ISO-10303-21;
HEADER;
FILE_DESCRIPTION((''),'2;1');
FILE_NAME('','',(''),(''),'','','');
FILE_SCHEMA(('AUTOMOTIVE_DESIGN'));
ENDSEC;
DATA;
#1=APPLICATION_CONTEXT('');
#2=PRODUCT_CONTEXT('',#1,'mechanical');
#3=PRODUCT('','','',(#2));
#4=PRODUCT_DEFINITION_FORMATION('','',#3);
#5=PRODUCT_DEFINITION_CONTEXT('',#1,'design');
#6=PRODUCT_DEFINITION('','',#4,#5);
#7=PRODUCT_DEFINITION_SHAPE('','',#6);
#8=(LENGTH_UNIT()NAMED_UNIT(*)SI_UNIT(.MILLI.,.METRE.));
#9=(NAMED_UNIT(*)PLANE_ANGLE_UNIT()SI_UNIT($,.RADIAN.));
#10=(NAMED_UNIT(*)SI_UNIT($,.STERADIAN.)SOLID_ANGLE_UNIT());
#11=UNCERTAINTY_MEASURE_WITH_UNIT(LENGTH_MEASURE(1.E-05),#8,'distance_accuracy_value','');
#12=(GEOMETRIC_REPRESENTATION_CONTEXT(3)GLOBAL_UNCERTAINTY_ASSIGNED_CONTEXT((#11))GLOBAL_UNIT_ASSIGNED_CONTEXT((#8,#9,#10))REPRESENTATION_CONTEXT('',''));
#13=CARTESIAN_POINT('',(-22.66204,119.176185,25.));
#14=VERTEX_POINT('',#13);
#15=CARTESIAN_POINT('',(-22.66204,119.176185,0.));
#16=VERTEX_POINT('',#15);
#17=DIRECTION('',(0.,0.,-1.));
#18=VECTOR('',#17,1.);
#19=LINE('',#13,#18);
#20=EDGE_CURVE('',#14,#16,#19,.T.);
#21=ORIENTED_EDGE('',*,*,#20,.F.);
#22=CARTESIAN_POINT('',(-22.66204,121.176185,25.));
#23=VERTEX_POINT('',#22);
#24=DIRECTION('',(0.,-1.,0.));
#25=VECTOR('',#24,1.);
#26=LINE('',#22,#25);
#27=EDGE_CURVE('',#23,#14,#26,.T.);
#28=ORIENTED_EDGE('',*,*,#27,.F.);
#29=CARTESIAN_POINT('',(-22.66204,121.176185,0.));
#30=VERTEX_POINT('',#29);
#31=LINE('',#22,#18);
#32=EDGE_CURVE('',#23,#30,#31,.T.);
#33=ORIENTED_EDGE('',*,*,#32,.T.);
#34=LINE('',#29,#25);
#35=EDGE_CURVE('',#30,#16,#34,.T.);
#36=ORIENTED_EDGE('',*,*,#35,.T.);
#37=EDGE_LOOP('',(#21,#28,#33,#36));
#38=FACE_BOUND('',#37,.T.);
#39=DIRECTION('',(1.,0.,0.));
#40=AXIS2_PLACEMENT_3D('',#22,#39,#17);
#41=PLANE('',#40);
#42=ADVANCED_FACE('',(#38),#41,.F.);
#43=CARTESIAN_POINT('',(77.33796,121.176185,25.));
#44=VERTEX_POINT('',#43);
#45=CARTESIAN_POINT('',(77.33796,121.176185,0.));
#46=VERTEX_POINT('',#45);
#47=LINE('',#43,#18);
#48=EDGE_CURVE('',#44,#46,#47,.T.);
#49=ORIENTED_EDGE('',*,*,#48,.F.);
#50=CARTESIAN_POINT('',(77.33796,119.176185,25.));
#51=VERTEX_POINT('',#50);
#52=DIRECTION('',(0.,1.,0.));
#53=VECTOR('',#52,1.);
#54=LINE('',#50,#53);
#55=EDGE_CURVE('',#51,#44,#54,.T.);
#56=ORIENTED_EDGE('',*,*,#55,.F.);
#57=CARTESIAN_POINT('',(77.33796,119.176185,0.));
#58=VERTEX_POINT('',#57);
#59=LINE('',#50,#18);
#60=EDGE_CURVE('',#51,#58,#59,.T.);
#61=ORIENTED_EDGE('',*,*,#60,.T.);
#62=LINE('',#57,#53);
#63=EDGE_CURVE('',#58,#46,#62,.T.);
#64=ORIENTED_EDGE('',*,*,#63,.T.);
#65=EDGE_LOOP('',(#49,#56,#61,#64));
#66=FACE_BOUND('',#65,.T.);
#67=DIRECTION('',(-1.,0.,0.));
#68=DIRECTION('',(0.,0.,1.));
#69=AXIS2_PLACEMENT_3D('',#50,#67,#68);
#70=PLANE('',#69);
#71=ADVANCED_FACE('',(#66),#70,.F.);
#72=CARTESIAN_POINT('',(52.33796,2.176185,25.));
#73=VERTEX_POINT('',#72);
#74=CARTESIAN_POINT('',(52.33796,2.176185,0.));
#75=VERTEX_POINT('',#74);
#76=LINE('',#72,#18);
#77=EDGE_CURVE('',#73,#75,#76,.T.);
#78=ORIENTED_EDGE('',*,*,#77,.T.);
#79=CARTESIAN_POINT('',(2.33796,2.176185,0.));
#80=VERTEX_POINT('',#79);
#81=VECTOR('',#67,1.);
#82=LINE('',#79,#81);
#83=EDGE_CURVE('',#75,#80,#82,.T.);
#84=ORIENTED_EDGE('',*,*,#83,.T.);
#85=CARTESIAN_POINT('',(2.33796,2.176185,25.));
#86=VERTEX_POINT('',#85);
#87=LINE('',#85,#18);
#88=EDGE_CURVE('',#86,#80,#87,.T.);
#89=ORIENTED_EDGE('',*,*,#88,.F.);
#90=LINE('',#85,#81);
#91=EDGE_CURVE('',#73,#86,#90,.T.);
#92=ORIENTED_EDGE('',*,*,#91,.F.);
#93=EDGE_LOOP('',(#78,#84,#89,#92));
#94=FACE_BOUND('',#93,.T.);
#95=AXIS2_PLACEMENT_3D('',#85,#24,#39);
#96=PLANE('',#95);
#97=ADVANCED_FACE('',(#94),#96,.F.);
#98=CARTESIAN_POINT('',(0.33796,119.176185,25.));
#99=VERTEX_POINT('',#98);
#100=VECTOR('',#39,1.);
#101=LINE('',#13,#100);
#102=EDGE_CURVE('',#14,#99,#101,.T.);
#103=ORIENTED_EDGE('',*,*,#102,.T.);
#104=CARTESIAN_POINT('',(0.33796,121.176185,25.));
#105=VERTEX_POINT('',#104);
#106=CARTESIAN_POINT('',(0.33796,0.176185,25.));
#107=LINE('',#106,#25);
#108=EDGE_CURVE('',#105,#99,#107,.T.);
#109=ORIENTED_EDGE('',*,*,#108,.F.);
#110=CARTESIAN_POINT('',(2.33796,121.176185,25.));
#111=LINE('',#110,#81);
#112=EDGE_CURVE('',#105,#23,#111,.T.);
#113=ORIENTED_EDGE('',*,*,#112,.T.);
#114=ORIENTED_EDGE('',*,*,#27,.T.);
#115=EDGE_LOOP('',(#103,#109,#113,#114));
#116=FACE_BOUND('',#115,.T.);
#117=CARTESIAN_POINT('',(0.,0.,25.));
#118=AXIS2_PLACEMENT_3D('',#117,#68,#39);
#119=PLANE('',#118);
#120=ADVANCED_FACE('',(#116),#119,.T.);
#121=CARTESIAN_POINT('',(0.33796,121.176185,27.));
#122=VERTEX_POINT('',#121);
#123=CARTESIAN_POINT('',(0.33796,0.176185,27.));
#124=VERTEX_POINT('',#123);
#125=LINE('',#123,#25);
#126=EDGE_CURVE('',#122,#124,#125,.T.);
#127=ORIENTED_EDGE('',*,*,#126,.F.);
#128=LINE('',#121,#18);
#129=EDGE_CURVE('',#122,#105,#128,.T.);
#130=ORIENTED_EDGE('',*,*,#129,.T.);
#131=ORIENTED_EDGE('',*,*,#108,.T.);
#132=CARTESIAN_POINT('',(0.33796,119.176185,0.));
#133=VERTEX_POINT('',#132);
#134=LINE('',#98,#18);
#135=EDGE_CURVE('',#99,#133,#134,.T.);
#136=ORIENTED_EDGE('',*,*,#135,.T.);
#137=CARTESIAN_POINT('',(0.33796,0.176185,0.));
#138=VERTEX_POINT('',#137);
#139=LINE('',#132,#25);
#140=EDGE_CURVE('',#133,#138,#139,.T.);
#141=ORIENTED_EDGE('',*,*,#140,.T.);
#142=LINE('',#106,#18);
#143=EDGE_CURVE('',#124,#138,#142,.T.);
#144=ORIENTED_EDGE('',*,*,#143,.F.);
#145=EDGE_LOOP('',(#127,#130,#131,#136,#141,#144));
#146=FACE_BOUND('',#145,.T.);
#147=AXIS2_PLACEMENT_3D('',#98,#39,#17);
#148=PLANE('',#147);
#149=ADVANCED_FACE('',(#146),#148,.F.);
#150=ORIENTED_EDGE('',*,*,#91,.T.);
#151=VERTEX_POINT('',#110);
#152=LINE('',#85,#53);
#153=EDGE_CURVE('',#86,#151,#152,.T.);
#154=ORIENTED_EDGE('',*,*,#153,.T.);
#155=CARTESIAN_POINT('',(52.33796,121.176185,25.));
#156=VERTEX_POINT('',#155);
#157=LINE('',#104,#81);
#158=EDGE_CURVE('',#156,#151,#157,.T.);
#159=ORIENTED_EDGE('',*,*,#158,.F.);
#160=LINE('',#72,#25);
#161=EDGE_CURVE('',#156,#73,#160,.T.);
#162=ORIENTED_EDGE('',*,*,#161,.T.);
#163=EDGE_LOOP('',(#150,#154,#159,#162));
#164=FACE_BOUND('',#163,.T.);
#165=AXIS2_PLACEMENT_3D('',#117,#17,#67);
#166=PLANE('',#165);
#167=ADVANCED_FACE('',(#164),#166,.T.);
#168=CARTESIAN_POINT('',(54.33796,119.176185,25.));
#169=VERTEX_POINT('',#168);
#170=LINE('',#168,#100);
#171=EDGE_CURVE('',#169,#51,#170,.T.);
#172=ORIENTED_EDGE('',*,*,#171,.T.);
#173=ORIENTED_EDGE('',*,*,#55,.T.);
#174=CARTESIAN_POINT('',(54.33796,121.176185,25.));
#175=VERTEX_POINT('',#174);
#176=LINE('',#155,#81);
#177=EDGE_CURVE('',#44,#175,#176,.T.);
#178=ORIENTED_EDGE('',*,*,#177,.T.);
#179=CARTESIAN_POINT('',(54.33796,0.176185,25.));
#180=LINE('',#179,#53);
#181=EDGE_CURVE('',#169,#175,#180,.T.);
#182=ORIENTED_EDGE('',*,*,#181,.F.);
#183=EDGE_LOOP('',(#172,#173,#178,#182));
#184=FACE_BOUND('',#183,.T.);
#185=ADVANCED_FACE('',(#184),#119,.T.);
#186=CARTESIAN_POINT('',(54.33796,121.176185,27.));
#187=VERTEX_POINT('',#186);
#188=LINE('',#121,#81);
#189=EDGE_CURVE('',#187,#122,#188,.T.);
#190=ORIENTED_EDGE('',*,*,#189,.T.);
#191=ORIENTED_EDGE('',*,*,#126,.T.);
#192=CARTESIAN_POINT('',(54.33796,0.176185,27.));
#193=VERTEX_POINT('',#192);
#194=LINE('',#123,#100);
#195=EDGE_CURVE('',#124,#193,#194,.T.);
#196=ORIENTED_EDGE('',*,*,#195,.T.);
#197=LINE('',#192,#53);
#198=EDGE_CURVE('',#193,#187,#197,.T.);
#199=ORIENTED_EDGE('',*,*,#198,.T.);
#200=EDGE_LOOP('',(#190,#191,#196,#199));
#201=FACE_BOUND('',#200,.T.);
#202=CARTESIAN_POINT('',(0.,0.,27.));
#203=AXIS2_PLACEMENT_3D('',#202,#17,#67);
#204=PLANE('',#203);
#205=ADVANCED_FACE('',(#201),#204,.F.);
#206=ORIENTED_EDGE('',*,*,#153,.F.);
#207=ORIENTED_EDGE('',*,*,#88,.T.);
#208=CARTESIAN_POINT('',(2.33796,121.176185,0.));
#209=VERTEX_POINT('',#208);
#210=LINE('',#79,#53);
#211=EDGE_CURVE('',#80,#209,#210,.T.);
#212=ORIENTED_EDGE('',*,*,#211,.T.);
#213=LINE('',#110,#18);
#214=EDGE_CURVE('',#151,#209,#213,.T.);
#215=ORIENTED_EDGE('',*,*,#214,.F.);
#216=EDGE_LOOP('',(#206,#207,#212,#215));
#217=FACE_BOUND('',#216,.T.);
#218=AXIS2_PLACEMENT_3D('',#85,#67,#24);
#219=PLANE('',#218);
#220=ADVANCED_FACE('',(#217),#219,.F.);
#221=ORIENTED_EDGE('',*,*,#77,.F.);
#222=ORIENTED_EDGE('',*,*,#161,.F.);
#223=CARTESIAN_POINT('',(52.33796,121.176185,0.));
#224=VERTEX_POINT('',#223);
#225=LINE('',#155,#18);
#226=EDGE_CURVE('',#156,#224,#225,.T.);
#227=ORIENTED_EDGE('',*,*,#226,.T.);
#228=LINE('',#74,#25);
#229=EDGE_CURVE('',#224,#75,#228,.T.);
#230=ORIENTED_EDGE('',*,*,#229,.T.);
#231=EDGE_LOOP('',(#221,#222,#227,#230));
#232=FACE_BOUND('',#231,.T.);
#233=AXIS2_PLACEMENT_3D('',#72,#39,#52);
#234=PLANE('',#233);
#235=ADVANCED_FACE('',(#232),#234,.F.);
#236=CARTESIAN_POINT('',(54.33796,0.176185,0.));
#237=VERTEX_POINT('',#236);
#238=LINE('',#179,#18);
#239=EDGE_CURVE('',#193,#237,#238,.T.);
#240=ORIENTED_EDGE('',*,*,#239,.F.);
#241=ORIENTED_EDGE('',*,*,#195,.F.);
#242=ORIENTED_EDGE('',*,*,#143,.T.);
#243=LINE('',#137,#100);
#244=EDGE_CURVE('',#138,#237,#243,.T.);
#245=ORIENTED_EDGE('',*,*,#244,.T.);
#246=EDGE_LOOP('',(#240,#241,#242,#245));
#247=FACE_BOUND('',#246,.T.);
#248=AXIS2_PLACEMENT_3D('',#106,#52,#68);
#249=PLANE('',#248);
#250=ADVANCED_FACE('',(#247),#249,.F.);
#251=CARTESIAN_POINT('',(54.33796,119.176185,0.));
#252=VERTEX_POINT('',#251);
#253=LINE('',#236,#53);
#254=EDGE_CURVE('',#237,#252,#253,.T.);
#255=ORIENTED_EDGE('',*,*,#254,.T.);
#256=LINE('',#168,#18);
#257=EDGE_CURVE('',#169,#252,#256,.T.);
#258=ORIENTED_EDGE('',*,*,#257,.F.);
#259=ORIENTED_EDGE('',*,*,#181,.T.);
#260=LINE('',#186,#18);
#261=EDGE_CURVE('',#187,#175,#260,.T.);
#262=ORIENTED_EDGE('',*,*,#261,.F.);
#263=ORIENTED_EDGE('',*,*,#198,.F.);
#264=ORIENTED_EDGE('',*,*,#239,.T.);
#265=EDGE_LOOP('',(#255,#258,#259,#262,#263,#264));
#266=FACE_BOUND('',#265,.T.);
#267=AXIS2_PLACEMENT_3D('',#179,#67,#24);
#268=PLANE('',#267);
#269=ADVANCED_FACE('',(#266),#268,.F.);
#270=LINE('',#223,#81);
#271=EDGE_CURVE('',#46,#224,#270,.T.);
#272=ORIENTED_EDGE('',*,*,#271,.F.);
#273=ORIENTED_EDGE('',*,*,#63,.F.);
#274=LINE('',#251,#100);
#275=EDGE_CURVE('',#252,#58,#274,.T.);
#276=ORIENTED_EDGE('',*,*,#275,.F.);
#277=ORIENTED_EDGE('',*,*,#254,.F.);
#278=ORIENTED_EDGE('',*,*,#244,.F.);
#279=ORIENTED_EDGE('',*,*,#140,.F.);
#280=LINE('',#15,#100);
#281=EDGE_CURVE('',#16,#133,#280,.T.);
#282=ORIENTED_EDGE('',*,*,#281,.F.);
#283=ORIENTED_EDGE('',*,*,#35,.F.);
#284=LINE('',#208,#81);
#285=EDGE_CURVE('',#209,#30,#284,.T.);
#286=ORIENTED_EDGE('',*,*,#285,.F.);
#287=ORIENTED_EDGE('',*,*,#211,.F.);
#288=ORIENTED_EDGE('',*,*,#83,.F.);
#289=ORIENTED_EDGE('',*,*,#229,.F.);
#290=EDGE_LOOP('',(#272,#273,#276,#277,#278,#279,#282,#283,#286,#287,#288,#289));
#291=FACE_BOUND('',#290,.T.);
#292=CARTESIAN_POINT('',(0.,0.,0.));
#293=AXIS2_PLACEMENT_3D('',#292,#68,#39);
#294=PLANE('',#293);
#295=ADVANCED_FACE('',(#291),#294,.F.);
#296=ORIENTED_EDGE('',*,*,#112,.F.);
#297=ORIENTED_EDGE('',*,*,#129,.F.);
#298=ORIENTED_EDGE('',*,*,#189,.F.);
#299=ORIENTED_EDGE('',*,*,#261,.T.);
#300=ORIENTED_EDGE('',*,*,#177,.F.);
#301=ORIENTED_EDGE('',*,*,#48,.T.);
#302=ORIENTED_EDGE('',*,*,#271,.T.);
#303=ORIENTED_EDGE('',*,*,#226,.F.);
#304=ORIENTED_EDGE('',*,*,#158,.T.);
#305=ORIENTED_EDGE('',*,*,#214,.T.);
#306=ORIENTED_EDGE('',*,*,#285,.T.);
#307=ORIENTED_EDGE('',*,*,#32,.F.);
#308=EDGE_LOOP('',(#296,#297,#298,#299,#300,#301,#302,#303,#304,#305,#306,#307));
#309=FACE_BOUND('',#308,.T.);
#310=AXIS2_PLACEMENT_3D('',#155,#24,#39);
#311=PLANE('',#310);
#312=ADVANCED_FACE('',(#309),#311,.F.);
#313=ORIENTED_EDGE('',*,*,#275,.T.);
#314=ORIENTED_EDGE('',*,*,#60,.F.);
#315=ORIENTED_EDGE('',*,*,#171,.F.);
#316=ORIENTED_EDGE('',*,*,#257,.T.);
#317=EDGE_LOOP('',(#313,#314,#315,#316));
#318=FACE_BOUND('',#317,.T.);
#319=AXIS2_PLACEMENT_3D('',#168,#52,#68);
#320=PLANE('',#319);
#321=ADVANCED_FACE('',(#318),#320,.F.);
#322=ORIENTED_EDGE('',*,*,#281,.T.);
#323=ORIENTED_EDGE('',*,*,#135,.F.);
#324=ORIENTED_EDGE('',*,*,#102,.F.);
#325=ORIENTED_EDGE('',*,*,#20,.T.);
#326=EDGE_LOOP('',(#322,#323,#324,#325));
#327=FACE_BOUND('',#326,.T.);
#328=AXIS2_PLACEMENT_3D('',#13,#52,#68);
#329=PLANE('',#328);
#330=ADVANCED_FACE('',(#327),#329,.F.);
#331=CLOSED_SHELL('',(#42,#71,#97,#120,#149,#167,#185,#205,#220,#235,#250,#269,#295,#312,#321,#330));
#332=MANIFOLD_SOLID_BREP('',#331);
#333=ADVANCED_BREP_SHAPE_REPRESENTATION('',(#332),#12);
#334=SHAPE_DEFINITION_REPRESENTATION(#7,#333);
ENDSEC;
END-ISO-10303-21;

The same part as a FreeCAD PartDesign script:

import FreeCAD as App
import Part
import Sketcher

V = App.Vector
Q = App.Units.Quantity

doc = App.newDocument("Part")
body = doc.addObject("PartDesign::Body", "Body")

# Sketch on XY plane
sketch1 = body.newObject("Sketcher::SketchObject", "Sketch")
sketch1.AttachmentSupport = (doc.getObject("XY_Plane"), [""])
sketch1.MapMode = "FlatFace"
sketch1.addGeometry([
    Part.LineSegment(V(2.33796, 2.176185, 0), V(2.33796, 121.176185, 0)),  # 0
    Part.LineSegment(V(2.33796, 121.176185, 0), V(-22.66204, 121.176185, 0)),  # 1
    Part.LineSegment(V(-22.66204, 121.176185, 0), V(-22.66204, 119.176185, 0)),  # 2
    Part.LineSegment(V(-22.66204, 119.176185, 0), V(0.33796, 119.176185, 0)),  # 3
    Part.LineSegment(V(0.33796, 119.176185, 0), V(0.33796, 0.176185, 0)),  # 4
    Part.LineSegment(V(0.33796, 0.176185, 0), V(54.33796, 0.176185, 0)),  # 5
    Part.LineSegment(V(54.33796, 0.176185, 0), V(54.33796, 119.176185, 0)),  # 6
    Part.LineSegment(V(54.33796, 119.176185, 0), V(77.33796, 119.176185, 0)),  # 7
    Part.LineSegment(V(77.33796, 119.176185, 0), V(77.33796, 121.176185, 0)),  # 8
    Part.LineSegment(V(77.33796, 121.176185, 0), V(52.33796, 121.176185, 0)),  # 9
    Part.LineSegment(V(52.33796, 121.176185, 0), V(52.33796, 2.176185, 0)),  # 10
    Part.LineSegment(V(52.33796, 2.176185, 0), V(2.33796, 2.176185, 0)),  # 11
], False)
sketch1.addConstraint([
    Sketcher.Constraint("Coincident", 0, 2, 1, 1),
    Sketcher.Constraint("Coincident", 1, 2, 2, 1),
    Sketcher.Constraint("Coincident", 2, 2, 3, 1),
    Sketcher.Constraint("Coincident", 3, 2, 4, 1),
    Sketcher.Constraint("Coincident", 4, 2, 5, 1),
    Sketcher.Constraint("Coincident", 5, 2, 6, 1),
    Sketcher.Constraint("Coincident", 6, 2, 7, 1),
    Sketcher.Constraint("Coincident", 7, 2, 8, 1),
    Sketcher.Constraint("Coincident", 8, 2, 9, 1),
    Sketcher.Constraint("Coincident", 9, 2, 10, 1),
    Sketcher.Constraint("Coincident", 10, 2, 11, 1),
    Sketcher.Constraint("Coincident", 11, 2, 0, 1),
    Sketcher.Constraint("Vertical", 0),
    Sketcher.Constraint("Horizontal", 1),
    Sketcher.Constraint("Vertical", 2),
    Sketcher.Constraint("Horizontal", 3),
    Sketcher.Constraint("Vertical", 4),
    Sketcher.Constraint("Horizontal", 5),
    Sketcher.Constraint("Vertical", 6),
    Sketcher.Constraint("Horizontal", 7),
    Sketcher.Constraint("Vertical", 8),
    Sketcher.Constraint("Horizontal", 9),
    Sketcher.Constraint("Vertical", 10),
    Sketcher.Constraint("Horizontal", 11),
    Sketcher.Constraint("Horizontal", 3, 2, 6, 2),
    Sketcher.Constraint("Horizontal", 1, 2, 8, 2),
    Sketcher.Constraint("Equal", 3, 7),
    Sketcher.Constraint("Equal", 1, 9),
    Sketcher.Constraint("Equal", 0, 4),
    Sketcher.Constraint("DistanceX", 1, 2, 1, 1, Q("25 mm")),
    Sketcher.Constraint("DistanceX", 3, 1, 3, 2, Q("23 mm")),
    Sketcher.Constraint("DistanceX", 5, 1, 5, 2, Q("54 mm")),
    Sketcher.Constraint("DistanceY", 0, 1, 0, 2, Q("119 mm")),
    Sketcher.Constraint("DistanceY", 2, 2, 2, 1, Q("2 mm")),
    Sketcher.Constraint("DistanceX", -1, 1, 0, 2, Q("2.33796 mm")),
    Sketcher.Constraint("DistanceY", -1, 1, 0, 2, Q("121.176185 mm")),
])
pad1 = body.newObject("PartDesign::Pad", "Pad")
pad1.Profile = sketch1
pad1.Length = 25

# Sketch on XY plane
sketch2 = body.newObject("Sketcher::SketchObject", "Sketch001")
sketch2.AttachmentSupport = (doc.getObject("XY_Plane"), [""])
sketch2.MapMode = "FlatFace"
sketch2.AttachmentOffset = App.Placement(V(0, 0, 25), App.Rotation())
sketch2.addGeometry([
    Part.LineSegment(V(0.33796, 121.176185, 0), V(0.33796, 0.176185, 0)),
    Part.LineSegment(V(0.33796, 0.176185, 0), V(54.33796, 0.176185, 0)),
    Part.LineSegment(V(54.33796, 0.176185, 0), V(54.33796, 121.176185, 0)),
    Part.LineSegment(V(54.33796, 121.176185, 0), V(0.33796, 121.176185, 0)),
], False)
sketch2.addConstraint([
    Sketcher.Constraint("Coincident", 0, 2, 1, 1),
    Sketcher.Constraint("Coincident", 1, 2, 2, 1),
    Sketcher.Constraint("Coincident", 2, 2, 3, 1),
    Sketcher.Constraint("Coincident", 3, 2, 0, 1),
    Sketcher.Constraint("Vertical", 0),
    Sketcher.Constraint("Horizontal", 1),
    Sketcher.Constraint("Vertical", 2),
    Sketcher.Constraint("Horizontal", 3),
    Sketcher.Constraint("DistanceX", 1, 1, 1, 2, Q("54 mm")),
    Sketcher.Constraint("DistanceY", 0, 2, 0, 1, Q("121 mm")),
    Sketcher.Constraint("DistanceX", -1, 1, 0, 2, Q("0.33796 mm")),
    Sketcher.Constraint("DistanceY", -1, 1, 0, 2, Q("0.176185 mm")),
])
pad2 = body.newObject("PartDesign::Pad", "Pad001")
pad2.Profile = sketch2
pad2.Length = 2

doc.recompute()
